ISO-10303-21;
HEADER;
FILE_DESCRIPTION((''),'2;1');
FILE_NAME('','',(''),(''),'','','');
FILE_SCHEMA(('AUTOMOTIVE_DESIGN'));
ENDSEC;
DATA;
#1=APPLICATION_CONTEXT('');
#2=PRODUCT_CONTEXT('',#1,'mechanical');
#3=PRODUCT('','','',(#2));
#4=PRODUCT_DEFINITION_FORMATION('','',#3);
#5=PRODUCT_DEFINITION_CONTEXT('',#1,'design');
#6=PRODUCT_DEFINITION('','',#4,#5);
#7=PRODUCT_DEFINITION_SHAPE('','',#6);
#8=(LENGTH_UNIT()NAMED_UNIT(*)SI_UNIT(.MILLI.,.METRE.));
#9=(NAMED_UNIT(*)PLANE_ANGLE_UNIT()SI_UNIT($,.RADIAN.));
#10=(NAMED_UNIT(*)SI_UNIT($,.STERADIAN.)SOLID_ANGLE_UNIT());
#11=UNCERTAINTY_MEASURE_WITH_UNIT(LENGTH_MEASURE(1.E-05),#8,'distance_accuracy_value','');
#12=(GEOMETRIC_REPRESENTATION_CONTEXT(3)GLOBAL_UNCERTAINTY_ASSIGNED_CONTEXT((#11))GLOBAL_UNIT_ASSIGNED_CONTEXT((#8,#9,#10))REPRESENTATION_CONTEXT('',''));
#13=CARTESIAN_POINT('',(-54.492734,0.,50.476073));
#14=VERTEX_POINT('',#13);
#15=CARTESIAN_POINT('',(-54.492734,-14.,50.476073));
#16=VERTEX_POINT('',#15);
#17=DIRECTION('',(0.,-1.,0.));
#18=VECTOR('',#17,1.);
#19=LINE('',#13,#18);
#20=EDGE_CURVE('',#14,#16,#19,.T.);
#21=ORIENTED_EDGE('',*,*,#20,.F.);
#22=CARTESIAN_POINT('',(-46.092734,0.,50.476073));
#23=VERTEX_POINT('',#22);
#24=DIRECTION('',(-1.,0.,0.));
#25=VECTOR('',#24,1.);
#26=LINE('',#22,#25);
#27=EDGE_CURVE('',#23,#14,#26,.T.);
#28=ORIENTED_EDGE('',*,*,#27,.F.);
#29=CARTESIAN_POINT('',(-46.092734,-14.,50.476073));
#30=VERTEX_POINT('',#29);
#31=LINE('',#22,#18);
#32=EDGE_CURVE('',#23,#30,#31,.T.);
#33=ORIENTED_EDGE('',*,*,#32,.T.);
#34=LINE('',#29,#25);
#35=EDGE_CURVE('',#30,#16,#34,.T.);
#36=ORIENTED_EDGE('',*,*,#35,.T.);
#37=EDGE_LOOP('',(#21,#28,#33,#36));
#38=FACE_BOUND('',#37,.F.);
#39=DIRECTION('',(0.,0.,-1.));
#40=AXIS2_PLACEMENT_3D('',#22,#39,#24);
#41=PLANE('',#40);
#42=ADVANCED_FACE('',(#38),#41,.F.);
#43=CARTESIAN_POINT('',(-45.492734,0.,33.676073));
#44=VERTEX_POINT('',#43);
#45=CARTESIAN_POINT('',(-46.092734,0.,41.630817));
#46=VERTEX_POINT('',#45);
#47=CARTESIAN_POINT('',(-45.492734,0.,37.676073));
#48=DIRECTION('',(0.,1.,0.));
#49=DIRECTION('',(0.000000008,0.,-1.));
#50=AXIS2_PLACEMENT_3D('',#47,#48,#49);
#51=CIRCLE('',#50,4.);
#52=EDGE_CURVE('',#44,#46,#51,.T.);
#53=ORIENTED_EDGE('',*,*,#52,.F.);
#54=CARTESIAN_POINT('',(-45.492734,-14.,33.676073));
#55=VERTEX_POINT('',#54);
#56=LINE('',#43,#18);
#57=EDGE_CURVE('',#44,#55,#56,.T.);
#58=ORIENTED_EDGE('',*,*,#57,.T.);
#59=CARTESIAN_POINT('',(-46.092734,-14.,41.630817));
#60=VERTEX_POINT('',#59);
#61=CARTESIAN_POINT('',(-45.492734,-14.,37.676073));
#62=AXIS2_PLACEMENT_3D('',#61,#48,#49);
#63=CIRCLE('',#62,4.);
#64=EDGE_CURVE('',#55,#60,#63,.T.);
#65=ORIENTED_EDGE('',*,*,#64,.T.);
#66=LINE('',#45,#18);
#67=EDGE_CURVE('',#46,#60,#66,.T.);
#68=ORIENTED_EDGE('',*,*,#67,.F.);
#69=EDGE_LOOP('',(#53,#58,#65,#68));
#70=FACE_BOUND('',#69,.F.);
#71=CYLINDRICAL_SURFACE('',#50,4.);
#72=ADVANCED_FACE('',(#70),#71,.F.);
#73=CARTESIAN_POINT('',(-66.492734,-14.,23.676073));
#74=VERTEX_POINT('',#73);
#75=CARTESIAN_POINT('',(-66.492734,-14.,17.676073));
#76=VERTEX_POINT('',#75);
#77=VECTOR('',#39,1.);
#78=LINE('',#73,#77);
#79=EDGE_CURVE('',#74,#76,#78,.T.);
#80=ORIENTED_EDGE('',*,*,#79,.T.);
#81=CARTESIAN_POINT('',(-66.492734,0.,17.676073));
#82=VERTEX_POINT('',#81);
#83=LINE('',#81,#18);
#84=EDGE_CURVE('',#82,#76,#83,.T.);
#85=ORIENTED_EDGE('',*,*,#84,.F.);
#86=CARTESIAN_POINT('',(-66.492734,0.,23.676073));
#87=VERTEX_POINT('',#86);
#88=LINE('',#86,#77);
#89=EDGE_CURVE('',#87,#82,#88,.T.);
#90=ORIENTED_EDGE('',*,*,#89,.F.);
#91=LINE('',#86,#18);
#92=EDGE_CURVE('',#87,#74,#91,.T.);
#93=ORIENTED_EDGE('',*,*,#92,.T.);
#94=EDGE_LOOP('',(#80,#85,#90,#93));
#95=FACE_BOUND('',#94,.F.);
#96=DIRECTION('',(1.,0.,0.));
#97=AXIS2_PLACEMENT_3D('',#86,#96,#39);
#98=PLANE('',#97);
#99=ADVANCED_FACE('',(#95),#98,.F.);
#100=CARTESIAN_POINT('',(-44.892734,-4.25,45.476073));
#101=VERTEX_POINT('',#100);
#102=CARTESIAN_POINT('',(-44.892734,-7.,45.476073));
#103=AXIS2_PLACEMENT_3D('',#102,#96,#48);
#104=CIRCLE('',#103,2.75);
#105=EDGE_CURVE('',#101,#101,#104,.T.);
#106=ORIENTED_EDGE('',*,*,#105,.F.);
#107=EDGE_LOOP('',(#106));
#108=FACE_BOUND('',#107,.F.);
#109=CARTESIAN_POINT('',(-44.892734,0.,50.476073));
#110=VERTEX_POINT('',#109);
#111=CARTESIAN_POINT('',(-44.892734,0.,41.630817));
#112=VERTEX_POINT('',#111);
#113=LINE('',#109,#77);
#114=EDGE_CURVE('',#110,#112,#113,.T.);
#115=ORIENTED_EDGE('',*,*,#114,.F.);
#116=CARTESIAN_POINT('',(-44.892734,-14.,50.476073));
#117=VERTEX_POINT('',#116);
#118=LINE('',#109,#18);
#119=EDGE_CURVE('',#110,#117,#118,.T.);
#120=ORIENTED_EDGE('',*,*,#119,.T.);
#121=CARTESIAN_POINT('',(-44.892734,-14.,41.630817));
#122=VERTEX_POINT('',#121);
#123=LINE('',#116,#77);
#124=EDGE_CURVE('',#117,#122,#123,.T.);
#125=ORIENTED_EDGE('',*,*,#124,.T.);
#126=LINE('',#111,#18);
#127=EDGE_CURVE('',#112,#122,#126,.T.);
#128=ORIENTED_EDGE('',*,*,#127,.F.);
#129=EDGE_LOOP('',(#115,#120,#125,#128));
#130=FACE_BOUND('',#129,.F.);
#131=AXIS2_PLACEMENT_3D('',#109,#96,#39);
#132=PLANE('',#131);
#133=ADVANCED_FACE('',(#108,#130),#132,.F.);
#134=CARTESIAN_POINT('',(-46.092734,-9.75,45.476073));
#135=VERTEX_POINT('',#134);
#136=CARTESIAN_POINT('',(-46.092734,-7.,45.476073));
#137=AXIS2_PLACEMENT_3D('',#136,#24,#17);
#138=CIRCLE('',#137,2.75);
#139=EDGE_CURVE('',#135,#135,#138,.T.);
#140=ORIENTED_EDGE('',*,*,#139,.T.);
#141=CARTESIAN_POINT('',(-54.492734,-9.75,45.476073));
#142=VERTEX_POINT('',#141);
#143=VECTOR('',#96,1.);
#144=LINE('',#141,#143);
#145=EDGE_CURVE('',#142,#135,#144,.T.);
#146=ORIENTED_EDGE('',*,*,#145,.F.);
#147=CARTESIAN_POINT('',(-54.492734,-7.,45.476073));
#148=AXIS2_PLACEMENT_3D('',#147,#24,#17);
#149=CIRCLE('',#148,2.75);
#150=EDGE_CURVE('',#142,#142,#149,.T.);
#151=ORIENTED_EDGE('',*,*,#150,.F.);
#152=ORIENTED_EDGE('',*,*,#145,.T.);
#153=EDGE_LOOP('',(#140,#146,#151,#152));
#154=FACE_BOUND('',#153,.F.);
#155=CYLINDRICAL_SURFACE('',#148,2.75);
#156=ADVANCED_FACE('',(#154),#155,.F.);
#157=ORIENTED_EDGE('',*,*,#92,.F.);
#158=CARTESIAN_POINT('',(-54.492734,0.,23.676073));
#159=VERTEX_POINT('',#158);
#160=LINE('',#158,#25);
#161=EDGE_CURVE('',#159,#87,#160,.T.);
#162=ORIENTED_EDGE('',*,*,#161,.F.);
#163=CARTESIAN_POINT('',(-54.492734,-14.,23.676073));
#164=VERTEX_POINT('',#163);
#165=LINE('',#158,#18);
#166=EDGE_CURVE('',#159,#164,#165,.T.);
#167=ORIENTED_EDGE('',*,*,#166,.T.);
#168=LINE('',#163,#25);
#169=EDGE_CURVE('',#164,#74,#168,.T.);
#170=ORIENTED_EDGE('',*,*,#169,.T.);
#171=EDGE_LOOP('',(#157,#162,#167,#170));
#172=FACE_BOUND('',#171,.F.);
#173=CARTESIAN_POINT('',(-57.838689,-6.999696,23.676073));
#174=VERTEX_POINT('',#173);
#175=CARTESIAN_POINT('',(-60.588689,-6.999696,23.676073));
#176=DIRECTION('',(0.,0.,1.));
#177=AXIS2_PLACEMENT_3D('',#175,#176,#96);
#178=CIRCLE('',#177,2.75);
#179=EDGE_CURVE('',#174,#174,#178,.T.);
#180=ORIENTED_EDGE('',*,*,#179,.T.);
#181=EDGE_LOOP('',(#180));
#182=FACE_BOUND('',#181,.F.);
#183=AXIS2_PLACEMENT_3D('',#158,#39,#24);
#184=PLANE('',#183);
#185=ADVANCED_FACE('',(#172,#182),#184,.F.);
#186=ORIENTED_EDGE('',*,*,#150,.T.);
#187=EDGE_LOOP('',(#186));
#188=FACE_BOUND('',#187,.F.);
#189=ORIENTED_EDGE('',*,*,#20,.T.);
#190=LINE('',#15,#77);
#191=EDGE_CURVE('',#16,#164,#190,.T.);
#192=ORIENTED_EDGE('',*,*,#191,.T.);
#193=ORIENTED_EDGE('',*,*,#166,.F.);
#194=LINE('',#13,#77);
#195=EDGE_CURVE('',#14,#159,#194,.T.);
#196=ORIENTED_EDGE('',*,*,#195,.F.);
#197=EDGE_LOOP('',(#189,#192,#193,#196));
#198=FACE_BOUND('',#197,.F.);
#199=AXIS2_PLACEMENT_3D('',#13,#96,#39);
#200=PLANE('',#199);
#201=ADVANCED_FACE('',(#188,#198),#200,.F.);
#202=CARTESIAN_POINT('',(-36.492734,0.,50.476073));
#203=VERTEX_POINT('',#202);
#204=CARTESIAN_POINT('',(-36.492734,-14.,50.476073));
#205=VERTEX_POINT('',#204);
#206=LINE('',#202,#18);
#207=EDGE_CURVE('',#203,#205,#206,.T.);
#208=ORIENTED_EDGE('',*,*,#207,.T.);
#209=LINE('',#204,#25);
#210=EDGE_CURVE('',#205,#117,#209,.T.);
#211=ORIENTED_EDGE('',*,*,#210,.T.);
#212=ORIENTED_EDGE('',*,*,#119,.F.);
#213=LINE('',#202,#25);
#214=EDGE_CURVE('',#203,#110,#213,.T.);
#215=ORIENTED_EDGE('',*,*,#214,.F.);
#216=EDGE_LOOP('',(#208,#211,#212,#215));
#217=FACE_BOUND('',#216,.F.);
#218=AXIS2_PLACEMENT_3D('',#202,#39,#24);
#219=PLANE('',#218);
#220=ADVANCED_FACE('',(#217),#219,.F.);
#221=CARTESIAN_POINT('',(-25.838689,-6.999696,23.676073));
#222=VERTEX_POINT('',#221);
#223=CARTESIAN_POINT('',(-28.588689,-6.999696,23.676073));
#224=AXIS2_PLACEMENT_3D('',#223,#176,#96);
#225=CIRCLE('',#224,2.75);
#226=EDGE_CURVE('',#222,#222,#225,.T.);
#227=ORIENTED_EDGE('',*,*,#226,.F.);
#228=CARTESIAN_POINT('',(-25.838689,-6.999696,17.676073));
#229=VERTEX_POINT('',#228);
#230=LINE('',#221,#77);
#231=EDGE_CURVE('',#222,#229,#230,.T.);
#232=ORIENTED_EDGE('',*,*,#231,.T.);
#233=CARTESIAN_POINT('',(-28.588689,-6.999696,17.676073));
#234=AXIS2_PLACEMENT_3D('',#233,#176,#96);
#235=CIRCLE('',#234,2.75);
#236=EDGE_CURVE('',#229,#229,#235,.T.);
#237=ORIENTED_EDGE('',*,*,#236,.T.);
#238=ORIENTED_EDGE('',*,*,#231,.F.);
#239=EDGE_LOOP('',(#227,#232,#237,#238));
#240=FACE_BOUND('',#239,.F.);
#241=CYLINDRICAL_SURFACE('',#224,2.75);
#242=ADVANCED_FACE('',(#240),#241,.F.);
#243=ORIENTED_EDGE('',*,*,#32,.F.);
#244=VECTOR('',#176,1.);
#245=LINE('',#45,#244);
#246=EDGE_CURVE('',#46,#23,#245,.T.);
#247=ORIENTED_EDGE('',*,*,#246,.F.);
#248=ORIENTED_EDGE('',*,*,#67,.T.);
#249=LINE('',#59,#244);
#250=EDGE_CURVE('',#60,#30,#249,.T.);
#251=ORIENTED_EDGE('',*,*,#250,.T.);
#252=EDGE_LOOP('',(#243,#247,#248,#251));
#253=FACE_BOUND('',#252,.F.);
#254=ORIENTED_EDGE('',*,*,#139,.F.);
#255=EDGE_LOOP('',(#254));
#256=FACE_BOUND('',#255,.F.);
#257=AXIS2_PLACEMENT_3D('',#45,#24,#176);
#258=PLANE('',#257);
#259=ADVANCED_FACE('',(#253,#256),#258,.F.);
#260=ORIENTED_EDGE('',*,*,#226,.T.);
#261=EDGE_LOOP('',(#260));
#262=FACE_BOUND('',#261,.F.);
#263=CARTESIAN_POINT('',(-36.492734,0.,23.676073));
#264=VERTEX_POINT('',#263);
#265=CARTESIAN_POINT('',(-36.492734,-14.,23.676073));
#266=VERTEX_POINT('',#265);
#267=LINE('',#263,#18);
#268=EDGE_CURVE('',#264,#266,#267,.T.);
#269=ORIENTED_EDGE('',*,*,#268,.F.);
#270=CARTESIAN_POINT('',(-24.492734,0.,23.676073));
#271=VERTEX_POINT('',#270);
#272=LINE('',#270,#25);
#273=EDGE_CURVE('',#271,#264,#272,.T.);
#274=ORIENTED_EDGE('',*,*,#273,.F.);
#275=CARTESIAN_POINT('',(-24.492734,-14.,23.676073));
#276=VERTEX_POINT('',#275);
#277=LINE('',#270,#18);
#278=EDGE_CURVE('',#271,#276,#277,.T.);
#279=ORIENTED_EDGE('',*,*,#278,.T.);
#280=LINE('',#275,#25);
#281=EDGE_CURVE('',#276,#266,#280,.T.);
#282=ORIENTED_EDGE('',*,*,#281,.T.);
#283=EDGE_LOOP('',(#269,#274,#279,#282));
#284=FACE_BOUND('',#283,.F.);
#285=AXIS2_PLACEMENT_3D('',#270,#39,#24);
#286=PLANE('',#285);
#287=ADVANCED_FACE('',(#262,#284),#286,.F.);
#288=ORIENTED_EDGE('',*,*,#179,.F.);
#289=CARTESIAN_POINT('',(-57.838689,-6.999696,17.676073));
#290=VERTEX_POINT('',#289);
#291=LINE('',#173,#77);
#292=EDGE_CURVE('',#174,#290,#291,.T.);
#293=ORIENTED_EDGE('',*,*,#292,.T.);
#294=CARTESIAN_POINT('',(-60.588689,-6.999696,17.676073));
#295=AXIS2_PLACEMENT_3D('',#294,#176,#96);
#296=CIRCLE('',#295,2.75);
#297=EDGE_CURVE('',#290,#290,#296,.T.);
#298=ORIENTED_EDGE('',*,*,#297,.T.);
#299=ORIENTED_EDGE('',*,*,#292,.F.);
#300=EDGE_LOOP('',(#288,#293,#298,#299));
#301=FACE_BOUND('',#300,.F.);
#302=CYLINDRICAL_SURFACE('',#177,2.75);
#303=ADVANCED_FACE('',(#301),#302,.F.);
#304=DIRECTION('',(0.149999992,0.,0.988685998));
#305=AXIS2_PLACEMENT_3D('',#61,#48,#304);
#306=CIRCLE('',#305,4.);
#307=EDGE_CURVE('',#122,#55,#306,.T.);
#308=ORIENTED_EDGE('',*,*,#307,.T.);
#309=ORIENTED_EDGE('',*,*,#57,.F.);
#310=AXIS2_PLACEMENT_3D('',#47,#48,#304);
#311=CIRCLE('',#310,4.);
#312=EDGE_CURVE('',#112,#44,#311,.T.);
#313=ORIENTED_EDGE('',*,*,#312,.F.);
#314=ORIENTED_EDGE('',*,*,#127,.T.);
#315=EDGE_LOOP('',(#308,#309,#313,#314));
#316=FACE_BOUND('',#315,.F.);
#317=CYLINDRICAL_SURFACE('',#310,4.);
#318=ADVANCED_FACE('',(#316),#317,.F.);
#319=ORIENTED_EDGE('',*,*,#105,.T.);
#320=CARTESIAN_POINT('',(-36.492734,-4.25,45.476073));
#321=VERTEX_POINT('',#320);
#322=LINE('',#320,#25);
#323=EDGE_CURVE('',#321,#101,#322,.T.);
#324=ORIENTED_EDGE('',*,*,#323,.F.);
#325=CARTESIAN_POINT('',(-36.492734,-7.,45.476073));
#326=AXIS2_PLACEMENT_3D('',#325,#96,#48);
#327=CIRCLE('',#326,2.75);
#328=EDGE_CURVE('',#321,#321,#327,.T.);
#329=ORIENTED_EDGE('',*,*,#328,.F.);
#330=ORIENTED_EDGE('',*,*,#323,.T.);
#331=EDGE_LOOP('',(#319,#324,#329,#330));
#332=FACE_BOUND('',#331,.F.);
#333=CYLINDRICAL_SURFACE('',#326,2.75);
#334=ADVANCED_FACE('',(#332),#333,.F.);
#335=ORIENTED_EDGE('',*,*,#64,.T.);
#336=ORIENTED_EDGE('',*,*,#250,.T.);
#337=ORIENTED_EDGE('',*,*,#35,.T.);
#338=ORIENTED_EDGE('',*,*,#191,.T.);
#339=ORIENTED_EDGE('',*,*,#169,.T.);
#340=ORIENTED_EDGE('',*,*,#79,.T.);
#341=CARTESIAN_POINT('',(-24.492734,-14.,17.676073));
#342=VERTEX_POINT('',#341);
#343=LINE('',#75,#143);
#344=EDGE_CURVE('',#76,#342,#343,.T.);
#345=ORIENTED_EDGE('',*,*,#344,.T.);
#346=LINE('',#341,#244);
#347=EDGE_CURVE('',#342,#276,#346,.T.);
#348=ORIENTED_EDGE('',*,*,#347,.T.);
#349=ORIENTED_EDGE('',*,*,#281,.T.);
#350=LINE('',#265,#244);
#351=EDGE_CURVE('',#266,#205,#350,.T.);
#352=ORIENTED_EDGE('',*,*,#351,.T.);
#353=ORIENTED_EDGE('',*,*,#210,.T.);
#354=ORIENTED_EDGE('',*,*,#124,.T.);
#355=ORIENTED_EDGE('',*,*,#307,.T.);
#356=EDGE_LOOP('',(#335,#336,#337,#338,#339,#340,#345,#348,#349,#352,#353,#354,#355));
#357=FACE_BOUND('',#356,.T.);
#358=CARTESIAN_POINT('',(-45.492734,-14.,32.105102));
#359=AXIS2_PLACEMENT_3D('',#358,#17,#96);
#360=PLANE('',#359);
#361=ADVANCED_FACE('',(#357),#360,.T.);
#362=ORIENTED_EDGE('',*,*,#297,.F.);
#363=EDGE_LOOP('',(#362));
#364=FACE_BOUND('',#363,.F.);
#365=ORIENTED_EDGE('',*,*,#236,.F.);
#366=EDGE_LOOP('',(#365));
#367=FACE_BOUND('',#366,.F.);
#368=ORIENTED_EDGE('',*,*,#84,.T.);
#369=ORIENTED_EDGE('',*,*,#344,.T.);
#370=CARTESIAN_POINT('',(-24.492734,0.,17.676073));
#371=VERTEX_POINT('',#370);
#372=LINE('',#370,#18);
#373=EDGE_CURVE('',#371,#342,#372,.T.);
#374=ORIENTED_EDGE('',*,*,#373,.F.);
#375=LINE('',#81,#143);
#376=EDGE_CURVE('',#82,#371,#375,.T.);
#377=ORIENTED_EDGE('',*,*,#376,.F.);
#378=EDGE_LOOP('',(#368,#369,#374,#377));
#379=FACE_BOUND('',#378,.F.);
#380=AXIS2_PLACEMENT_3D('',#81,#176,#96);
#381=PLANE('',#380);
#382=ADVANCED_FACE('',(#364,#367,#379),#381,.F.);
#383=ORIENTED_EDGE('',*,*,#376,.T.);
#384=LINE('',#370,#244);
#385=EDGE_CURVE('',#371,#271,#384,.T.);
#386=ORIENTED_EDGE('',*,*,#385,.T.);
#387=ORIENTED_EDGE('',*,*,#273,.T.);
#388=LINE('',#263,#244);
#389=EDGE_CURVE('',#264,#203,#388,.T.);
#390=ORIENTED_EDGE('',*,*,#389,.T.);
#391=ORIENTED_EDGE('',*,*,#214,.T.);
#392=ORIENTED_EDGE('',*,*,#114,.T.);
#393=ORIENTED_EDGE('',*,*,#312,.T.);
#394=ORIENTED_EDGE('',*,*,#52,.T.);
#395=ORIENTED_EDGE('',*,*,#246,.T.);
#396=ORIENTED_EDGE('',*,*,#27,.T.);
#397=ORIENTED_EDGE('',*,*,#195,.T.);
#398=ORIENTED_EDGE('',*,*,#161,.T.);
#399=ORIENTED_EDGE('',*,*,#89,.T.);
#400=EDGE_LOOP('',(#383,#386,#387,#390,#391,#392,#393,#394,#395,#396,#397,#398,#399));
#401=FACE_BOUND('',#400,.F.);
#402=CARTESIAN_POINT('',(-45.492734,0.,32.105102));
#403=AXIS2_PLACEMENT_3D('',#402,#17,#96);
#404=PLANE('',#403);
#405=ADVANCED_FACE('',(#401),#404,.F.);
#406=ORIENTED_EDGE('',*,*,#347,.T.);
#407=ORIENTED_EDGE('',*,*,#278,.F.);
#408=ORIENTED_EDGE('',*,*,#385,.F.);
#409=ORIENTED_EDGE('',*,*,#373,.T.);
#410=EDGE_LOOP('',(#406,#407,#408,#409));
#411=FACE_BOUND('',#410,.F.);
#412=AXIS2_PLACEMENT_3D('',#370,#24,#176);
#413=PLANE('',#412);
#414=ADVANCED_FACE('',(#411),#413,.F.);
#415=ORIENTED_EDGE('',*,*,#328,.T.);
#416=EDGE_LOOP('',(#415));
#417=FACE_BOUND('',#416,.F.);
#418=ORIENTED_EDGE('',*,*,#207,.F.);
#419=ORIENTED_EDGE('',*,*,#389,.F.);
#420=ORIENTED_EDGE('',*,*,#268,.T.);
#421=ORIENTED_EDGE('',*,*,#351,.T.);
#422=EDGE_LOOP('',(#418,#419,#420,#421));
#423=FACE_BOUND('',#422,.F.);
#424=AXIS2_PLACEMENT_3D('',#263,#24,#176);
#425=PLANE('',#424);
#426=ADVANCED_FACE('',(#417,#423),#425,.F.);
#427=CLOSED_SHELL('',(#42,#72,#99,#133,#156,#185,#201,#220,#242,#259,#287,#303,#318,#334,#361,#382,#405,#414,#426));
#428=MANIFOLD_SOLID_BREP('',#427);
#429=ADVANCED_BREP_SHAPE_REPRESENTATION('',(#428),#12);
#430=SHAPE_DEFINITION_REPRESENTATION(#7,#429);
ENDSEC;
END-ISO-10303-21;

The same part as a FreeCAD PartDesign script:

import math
import FreeCAD as App
import Part
import Sketcher

V = App.Vector
Q = App.Units.Quantity

doc = App.newDocument("Part")
body = doc.addObject("PartDesign::Body", "Body")

# Sketch on XZ plane
sketch1 = body.newObject("Sketcher::SketchObject", "Sketch")
sketch1.AttachmentSupport = (doc.getObject("XZ_Plane"), [""])
sketch1.MapMode = "FlatFace"
sketch1.addGeometry([
    Part.LineSegment(V(-66.492734, 17.676073, 0), V(-24.492734, 17.676073, 0)),  # 0
    Part.LineSegment(V(-24.492734, 17.676073, 0), V(-24.492734, 23.676073, 0)),  # 1
    Part.LineSegment(V(-24.492734, 23.676073, 0), V(-36.492734, 23.676073, 0)),  # 2
    Part.LineSegment(V(-36.492734, 23.676073, 0), V(-36.492734, 50.476073, 0)),  # 3
    Part.LineSegment(V(-36.492734, 50.476073, 0), V(-44.892734, 50.476073, 0)),  # 4
    Part.LineSegment(V(-44.892734, 50.476073, 0), V(-44.892734, 41.630817, 0)),  # 5
    Part.ArcOfCircle(Part.Circle(V(-45.492734, 37.676073, 0), V(0, 0, 1), 4), math.radians(-90), math.radians(81.373074)),  # 6
    Part.ArcOfCircle(Part.Circle(V(-45.492734, 37.676073, 0), V(0, 0, 1), 4), math.radians(98.626926), math.radians(270)),  # 7
    Part.LineSegment(V(-46.092734, 41.630817, 0), V(-46.092734, 50.476073, 0)),  # 8
    Part.LineSegment(V(-46.092734, 50.476073, 0), V(-54.492734, 50.476073, 0)),  # 9
    Part.LineSegment(V(-54.492734, 50.476073, 0), V(-54.492734, 23.676073, 0)),  # 10
    Part.LineSegment(V(-54.492734, 23.676073, 0), V(-66.492734, 23.676073, 0)),  # 11
    Part.LineSegment(V(-66.492734, 23.676073, 0), V(-66.492734, 17.676073, 0)),  # 12
], False)
sketch1.addConstraint([
    Sketcher.Constraint("Coincident", 0, 2, 1, 1),
    Sketcher.Constraint("Coincident", 1, 2, 2, 1),
    Sketcher.Constraint("Coincident", 2, 2, 3, 1),
    Sketcher.Constraint("Coincident", 3, 2, 4, 1),
    Sketcher.Constraint("Coincident", 4, 2, 5, 1),
    Sketcher.Constraint("Coincident", 5, 2, 6, 2),
    Sketcher.Constraint("Tangent", 6, 1, 7, 2),
    Sketcher.Constraint("Coincident", 7, 1, 8, 1),
    Sketcher.Constraint("Coincident", 8, 2, 9, 1),
    Sketcher.Constraint("Coincident", 9, 2, 10, 1),
    Sketcher.Constraint("Coincident", 10, 2, 11, 1),
    Sketcher.Constraint("Coincident", 11, 2, 12, 1),
    Sketcher.Constraint("Coincident", 12, 2, 0, 1),
    Sketcher.Constraint("Horizontal", 0),
    Sketcher.Constraint("Vertical", 1),
    Sketcher.Constraint("Horizontal", 2),
    Sketcher.Constraint("Vertical", 3),
    Sketcher.Constraint("Horizontal", 4),
    Sketcher.Constraint("Vertical", 5),
    Sketcher.Constraint("Vertical", 8),
    Sketcher.Constraint("Horizontal", 9),
    Sketcher.Constraint("Vertical", 10),
    Sketcher.Constraint("Horizontal", 11),
    Sketcher.Constraint("Vertical", 12),
    Sketcher.Constraint("Equal", 6, 7),
    Sketcher.Constraint("Horizontal", 5, 2, 7, 1),
    Sketcher.Constraint("Horizontal", 4, 2, 8, 2),
    Sketcher.Constraint("Horizontal", 2, 2, 10, 2),
    Sketcher.Constraint("Vertical", 7, 3, 6, 1),
    Sketcher.Constraint("Equal", 4, 9),
    Sketcher.Constraint("Equal", 2, 11),
    Sketcher.Constraint("Radius", 6, Q("4 mm")),
    Sketcher.Constraint("DistanceX", 0, 1, 0, 2, Q("42 mm")),
    Sketcher.Constraint("DistanceX", 2, 2, 2, 1, Q("12 mm")),
    Sketcher.Constraint("DistanceY", 1, 1, 1, 2, Q("6 mm")),
    Sketcher.Constraint("DistanceX", 4, 2, 4, 1, Q("8.4 mm")),
    Sketcher.Constraint("DistanceY", 3, 1, 3, 2, Q("26.8 mm")),
    Sketcher.Constraint("DistanceY", 0, 2, 6, 3, Q("20 mm")),
    Sketcher.Constraint("DistanceX", 6, 3, -1, 1, Q("45.492734 mm")),
    Sketcher.Constraint("DistanceY", -1, 1, 6, 3, Q("37.676073 mm")),
])
pad1 = body.newObject("PartDesign::Pad", "Pad")
pad1.Profile = sketch1
pad1.Length = 14

# Sketch on XY plane
sketch2 = body.newObject("Sketcher::SketchObject", "Sketch001")
sketch2.AttachmentSupport = (doc.getObject("XY_Plane"), [""])
sketch2.MapMode = "FlatFace"
sketch2.AttachmentOffset = App.Placement(V(0, 0, 23.676073), App.Rotation())
sketch2.addGeometry([
    Part.Circle(V(-60.588689, -6.999696, 0), V(0, 0, 1), 2.75),
    Part.Circle(V(-28.588689, -6.999696, 0), V(0, 0, 1), 2.75),
], False)
sketch2.addConstraint([
    Sketcher.Constraint("Equal", 0, 1),
    Sketcher.Constraint("Horizontal", 0, 3, 1, 3),
    Sketcher.Constraint("Diameter", 0, Q("5.5 mm")),
    Sketcher.Constraint("DistanceX", 0, 3, 1, 3, Q("32 mm")),
    Sketcher.Constraint("DistanceX", 0, 3, -1, 1, Q("60.588689 mm")),
    Sketcher.Constraint("DistanceY", 0, 3, -1, 1, Q("6.999696 mm")),
])
pocket1 = body.newObject("PartDesign::Pocket", "Pocket")
pocket1.Profile = sketch2
pocket1.Length = 6

# Sketch on YZ plane
sketch3 = body.newObject("Sketcher::SketchObject", "Sketch002")
sketch3.AttachmentSupport = (doc.getObject("YZ_Plane"), [""])
sketch3.MapMode = "FlatFace"
sketch3.AttachmentOffset = App.Placement(V(0, 0, -36.492734), App.Rotation())
sketch3.addGeometry(Part.Circle(V(-7, 45.476073, 0), V(0, 0, 1), 2.75), False)
sketch3.addConstraint([
    Sketcher.Constraint("Diameter", 0, Q("5.5 mm")),
    Sketcher.Constraint("DistanceX", 0, 3, -1, 1, Q("7 mm")),
    Sketcher.Constraint("DistanceY", -1, 1, 0, 3, Q("45.476073 mm")),
])
pocket2 = body.newObject("PartDesign::Pocket", "Pocket001")
pocket2.Profile = sketch3
pocket2.Length = 9

# Sketch on YZ plane
sketch4 = body.newObject("Sketcher::SketchObject", "Sketch003")
sketch4.AttachmentSupport = (doc.getObject("YZ_Plane"), [""])
sketch4.MapMode = "FlatFace"
sketch4.AttachmentOffset = App.Placement(V(0, 0, -54.492734), App.Rotation())
sketch4.addGeometry(Part.Circle(V(-7, 45.476073, 0), V(0, 0, 1), 2.75), False)
sketch4.addConstraint([
    Sketcher.Constraint("Diameter", 0, Q("5.5 mm")),
    Sketcher.Constraint("DistanceX", 0, 3, -1, 1, Q("7 mm")),
    Sketcher.Constraint("DistanceY", -1, 1, 0, 3, Q("45.476073 mm")),
])
pocket3 = body.newObject("PartDesign::Pocket", "Pocket002")
pocket3.Profile = sketch4
pocket3.Length = 9
pocket3.Reversed = True

doc.recompute()
